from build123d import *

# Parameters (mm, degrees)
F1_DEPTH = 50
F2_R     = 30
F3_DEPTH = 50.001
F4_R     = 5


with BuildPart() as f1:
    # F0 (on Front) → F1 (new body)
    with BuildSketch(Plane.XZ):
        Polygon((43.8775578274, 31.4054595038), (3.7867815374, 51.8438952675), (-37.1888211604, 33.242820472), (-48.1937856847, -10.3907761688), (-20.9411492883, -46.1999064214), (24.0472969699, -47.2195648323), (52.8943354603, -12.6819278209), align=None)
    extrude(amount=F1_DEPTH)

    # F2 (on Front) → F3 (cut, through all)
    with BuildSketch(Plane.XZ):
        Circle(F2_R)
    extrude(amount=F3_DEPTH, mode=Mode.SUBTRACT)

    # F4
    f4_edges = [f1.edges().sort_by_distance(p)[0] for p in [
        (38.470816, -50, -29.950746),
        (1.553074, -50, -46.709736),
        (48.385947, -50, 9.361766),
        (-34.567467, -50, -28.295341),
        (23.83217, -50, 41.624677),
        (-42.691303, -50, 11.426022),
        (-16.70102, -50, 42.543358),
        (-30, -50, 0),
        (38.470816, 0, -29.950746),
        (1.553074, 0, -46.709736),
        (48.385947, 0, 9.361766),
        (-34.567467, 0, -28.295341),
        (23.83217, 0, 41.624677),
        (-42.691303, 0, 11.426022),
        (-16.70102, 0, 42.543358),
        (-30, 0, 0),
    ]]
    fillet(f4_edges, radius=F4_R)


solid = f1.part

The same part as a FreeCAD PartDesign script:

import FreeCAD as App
import Part
import Sketcher
Q = App.Units.Quantity


def edges_at(feature, points):
    """Names of the edges that pass closest to the given points."""
    edges = feature.Shape.Edges
    near = lambda p: min(range(len(edges)), key=lambda i: edges[i].distToShape(Part.Vertex(*p))[0])
    return sorted({f"Edge{near(p) + 1}" for p in points})

doc = App.newDocument("Part")
body = doc.addObject("PartDesign::Body", "Body")

# Sketch on XZ plane
sketch1 = body.newObject("Sketcher::SketchObject", "Sketch")
sketch1.AttachmentSupport = (doc.getObject("XZ_Plane"), [""])
sketch1.MapMode = "FlatFace"
sketch1.addGeometry([
    Part.LineSegment(App.Vector(44, 31, 0), App.Vector(4, 52, 0)),  # 0
    Part.LineSegment(App.Vector(4, 52, 0), App.Vector(-37, 33, 0)),  # 1
    Part.LineSegment(App.Vector(-37, 33, 0), App.Vector(-48, -10, 0)),  # 2
    Part.LineSegment(App.Vector(-48, -10, 0), App.Vector(-21, -46, 0)),  # 3
    Part.LineSegment(App.Vector(-21, -46, 0), App.Vector(24, -47, 0)),  # 4
    Part.LineSegment(App.Vector(24, -47, 0), App.Vector(53, -13, 0)),  # 5
    Part.LineSegment(App.Vector(53, -13, 0), App.Vector(44, 31, 0)),  # 6
], False)
sketch1.addConstraint([
    Sketcher.Constraint("Coincident", 0, 2, 1, 1),
    Sketcher.Constraint("Coincident", 1, 2, 2, 1),
    Sketcher.Constraint("Coincident", 2, 2, 3, 1),
    Sketcher.Constraint("Coincident", 3, 2, 4, 1),
    Sketcher.Constraint("Coincident", 4, 2, 5, 1),
    Sketcher.Constraint("Coincident", 5, 2, 6, 1),
    Sketcher.Constraint("Coincident", 6, 2, 0, 1),
    Sketcher.Constraint("Equal", 0, 1),
    Sketcher.Constraint("Equal", 1, 2),
    Sketcher.Constraint("Equal", 2, 3),
    Sketcher.Constraint("Equal", 3, 4),
    Sketcher.Constraint("Equal", 4, 5),
    Sketcher.Constraint("Equal", 5, 6),
    Sketcher.Constraint("Distance", 0, Q("45 mm")),
    Sketcher.Constraint("DistanceY", 3, 2, 0, 2, Q("98.043802 mm")),
    Sketcher.Constraint("DistanceX", -1, 1, 0, 2, Q("3.786782 mm")),
    Sketcher.Constraint("DistanceX", 1, 2, -1, 1, Q("37.188821 mm")),
    Sketcher.Constraint("DistanceY", -1, 1, 1, 2, Q("33.24282 mm")),
    Sketcher.Constraint("DistanceX", 3, 2, -1, 1, Q("20.941149 mm")),
    Sketcher.Constraint("DistanceY", -1, 1, 6, 2, Q("31.40546 mm")),
    Sketcher.Constraint("DistanceY", 4, 2, 3, 2, Q("1.019658 mm")),
])
pad1 = body.newObject("PartDesign::Pad", "Pad")
pad1.Profile = sketch1
pad1.Length = 50

# Sketch on XZ plane
sketch2 = body.newObject("Sketcher::SketchObject", "Sketch001")
sketch2.AttachmentSupport = (doc.getObject("XZ_Plane"), [""])
sketch2.MapMode = "FlatFace"
sketch2.addGeometry(Part.Circle(App.Vector(0, 0, 0), App.Vector(0, 0, 1), 30), False)
sketch2.addConstraint([
    Sketcher.Constraint("Coincident", 0, 3, -1, 1),
    Sketcher.Constraint("Diameter", 0, Q("60 mm")),
])
pocket1 = body.newObject("PartDesign::Pocket", "Pocket")
pocket1.Profile = sketch2
pocket1.Type = "ThroughAll"
pocket1.Reversed = True
doc.recompute()

fillet = body.newObject("PartDesign::Fillet", "Fillet")
fillet.Base = (pocket1, edges_at(pocket1, [
    (38.471, -50, -29.951),
    (1.553, -50, -46.71),
    (48.386, -50, 9.362),
    (-34.567, -50, -28.295),
    (23.832, -50, 41.625),
    (-42.691, -50, 11.426),
    (-16.701, -50, 42.543),
    (-30, -50, 0),
    (38.471, 0, -29.951),
    (1.553, 0, -46.71),
    (48.386, 0, 9.362),
    (-34.567, 0, -28.295),
    (23.832, 0, 41.625),
    (-42.691, 0, 11.426),
    (-16.701, 0, 42.543),
    (-30, 0, 0),
]))
fillet.Radius = 5

doc.recompute()
